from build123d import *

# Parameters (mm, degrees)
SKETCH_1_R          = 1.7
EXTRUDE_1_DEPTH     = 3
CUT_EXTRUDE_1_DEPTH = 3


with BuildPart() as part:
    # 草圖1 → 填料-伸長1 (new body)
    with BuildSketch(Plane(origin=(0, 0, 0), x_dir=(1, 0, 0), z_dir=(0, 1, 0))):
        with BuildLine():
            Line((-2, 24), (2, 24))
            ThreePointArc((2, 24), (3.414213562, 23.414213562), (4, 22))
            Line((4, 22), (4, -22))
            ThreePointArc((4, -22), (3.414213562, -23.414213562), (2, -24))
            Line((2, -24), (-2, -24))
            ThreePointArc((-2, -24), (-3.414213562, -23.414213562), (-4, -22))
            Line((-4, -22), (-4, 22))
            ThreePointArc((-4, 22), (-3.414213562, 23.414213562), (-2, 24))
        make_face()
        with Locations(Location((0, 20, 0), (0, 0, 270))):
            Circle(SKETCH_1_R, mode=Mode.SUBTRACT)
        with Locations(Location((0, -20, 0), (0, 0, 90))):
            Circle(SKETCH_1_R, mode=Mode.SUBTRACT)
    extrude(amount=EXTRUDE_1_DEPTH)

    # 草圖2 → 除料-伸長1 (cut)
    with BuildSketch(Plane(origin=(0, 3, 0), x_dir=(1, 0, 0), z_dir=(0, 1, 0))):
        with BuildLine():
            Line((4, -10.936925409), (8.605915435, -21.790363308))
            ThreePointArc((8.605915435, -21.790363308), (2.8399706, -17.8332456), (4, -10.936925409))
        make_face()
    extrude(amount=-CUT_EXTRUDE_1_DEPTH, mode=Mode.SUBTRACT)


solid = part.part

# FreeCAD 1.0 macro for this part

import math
import FreeCAD as App
import Part
import Sketcher

V = App.Vector

doc = App.newDocument("Part")
body = doc.addObject("PartDesign::Body", "Body")

# Sketch on XZ plane
sketch1 = body.newObject("Sketcher::SketchObject", "Sketch")
sketch1.AttachmentSupport = (doc.getObject("XZ_Plane"), [""])
sketch1.MapMode = "FlatFace"
sketch1.addGeometry(Part.LineSegment(V(2, -24, 0), V(-2, -24, 0)), False)
sketch1.addGeometry(Part.ArcOfCircle(Part.Circle(V(-2, -22, 0), V(0, 0, 1), 2), math.radians(-180), math.radians(-90)), False)
sketch1.addGeometry(Part.LineSegment(V(-4, -22, 0), V(-4, 22, 0)), False)
sketch1.addGeometry(Part.ArcOfCircle(Part.Circle(V(-2, 22, 0), V(0, 0, 1), 2), math.radians(90), math.radians(180)), False)
sketch1.addGeometry(Part.LineSegment(V(-2, 24, 0), V(2, 24, 0)), False)
sketch1.addGeometry(Part.ArcOfCircle(Part.Circle(V(2, 22, 0), V(0, 0, 1), 2), math.radians(0), math.radians(90)), False)
sketch1.addGeometry(Part.LineSegment(V(4, 22, 0), V(4, -22, 0)), False)
sketch1.addGeometry(Part.ArcOfCircle(Part.Circle(V(2, -22, 0), V(0, 0, 1), 2), math.radians(-90), math.radians(0)), False)
sketch1.addGeometry(Part.Circle(V(0, 20, 0), V(0, 0, 1), 1.7), False)
sketch1.addGeometry(Part.Circle(V(0, -20, 0), V(0, 0, 1), 1.7), False)
sketch1.addConstraint(Sketcher.Constraint("Tangent", 0, 2, 1, 2))
sketch1.addConstraint(Sketcher.Constraint("Tangent", 1, 1, 2, 1))
sketch1.addConstraint(Sketcher.Constraint("Tangent", 2, 2, 3, 2))
sketch1.addConstraint(Sketcher.Constraint("Tangent", 3, 1, 4, 1))
sketch1.addConstraint(Sketcher.Constraint("Tangent", 4, 2, 5, 2))
sketch1.addConstraint(Sketcher.Constraint("Tangent", 5, 1, 6, 1))
sketch1.addConstraint(Sketcher.Constraint("Tangent", 6, 2, 7, 2))
sketch1.addConstraint(Sketcher.Constraint("Tangent", 7, 1, 0, 1))
sketch1.addConstraint(Sketcher.Constraint("Horizontal", 0))
sketch1.addConstraint(Sketcher.Constraint("Vertical", 2))
sketch1.addConstraint(Sketcher.Constraint("Horizontal", 4))
sketch1.addConstraint(Sketcher.Constraint("Vertical", 6))
sketch1.addConstraint(Sketcher.Constraint("Equal", 1, 3))
sketch1.addConstraint(Sketcher.Constraint("Equal", 3, 5))
sketch1.addConstraint(Sketcher.Constraint("Equal", 5, 7))
sketch1.addConstraint(Sketcher.Constraint("Equal", 8, 9))
sketch1.addConstraint(Sketcher.Constraint("Symmetric", 1, 3, 5, 3, -1, 1))
sketch1.addConstraint(Sketcher.Constraint("Symmetric", 8, 3, 9, 3, -1, 1))
sketch1.addConstraint(Sketcher.Constraint("PointOnObject", 8, 3, -2))
sketch1.addConstraint(Sketcher.Constraint("Radius", 1, 2.0))
sketch1.addConstraint(Sketcher.Constraint("Diameter", 8, 3.4))
sketch1.addConstraint(Sketcher.Constraint("DistanceX", 0, 2, 0, 1, 4.0))
sketch1.addConstraint(Sketcher.Constraint("DistanceY", 2, 1, 2, 2, 44.0))
sketch1.addConstraint(Sketcher.Constraint("DistanceY", -1, 1, 8, 3, 20.0))
pad1 = body.newObject("PartDesign::Pad", "Pad")
pad1.Profile = sketch1
pad1.Length = 3
pad1.Reversed = True

# Sketch on XZ plane
sketch2 = body.newObject("Sketcher::SketchObject", "Sketch001")
sketch2.AttachmentSupport = (doc.getObject("XZ_Plane"), [""])
sketch2.MapMode = "FlatFace"
sketch2.AttachmentOffset = App.Placement(V(0, 0, -3), App.Rotation())
sketch2.addGeometry(Part.LineSegment(V(8.605915, 21.790363, 0), V(4, 10.936925, 0)), False)
sketch2.addGeometry(Part.ArcOfCircle(Part.Circle(V(8.823469, 15.294005, 0), V(0, 0, 1), 6.5), math.radians(91.918039), math.radians(222.091763)), False)
sketch2.addConstraint(Sketcher.Constraint("Coincident", 0, 1, 1, 1))
sketch2.addConstraint(Sketcher.Constraint("Coincident", 1, 2, 0, 2))
sketch2.addConstraint(Sketcher.Constraint("Radius", 1, 6.5))
sketch2.addConstraint(Sketcher.Constraint("DistanceX", -1, 1, 1, 2, 4.0))
sketch2.addConstraint(Sketcher.Constraint("DistanceX", -1, 1, 1, 3, 8.823469))
sketch2.addConstraint(Sketcher.Constraint("DistanceY", 1, 3, 0, 1, 6.496358))
sketch2.addConstraint(Sketcher.Constraint("DistanceY", -1, 1, 1, 3, 15.294005))
pocket1 = body.newObject("PartDesign::Pocket", "Pocket")
pocket1.Profile = sketch2
pocket1.Length = 3
pocket1.Reversed = True

doc.recompute()
